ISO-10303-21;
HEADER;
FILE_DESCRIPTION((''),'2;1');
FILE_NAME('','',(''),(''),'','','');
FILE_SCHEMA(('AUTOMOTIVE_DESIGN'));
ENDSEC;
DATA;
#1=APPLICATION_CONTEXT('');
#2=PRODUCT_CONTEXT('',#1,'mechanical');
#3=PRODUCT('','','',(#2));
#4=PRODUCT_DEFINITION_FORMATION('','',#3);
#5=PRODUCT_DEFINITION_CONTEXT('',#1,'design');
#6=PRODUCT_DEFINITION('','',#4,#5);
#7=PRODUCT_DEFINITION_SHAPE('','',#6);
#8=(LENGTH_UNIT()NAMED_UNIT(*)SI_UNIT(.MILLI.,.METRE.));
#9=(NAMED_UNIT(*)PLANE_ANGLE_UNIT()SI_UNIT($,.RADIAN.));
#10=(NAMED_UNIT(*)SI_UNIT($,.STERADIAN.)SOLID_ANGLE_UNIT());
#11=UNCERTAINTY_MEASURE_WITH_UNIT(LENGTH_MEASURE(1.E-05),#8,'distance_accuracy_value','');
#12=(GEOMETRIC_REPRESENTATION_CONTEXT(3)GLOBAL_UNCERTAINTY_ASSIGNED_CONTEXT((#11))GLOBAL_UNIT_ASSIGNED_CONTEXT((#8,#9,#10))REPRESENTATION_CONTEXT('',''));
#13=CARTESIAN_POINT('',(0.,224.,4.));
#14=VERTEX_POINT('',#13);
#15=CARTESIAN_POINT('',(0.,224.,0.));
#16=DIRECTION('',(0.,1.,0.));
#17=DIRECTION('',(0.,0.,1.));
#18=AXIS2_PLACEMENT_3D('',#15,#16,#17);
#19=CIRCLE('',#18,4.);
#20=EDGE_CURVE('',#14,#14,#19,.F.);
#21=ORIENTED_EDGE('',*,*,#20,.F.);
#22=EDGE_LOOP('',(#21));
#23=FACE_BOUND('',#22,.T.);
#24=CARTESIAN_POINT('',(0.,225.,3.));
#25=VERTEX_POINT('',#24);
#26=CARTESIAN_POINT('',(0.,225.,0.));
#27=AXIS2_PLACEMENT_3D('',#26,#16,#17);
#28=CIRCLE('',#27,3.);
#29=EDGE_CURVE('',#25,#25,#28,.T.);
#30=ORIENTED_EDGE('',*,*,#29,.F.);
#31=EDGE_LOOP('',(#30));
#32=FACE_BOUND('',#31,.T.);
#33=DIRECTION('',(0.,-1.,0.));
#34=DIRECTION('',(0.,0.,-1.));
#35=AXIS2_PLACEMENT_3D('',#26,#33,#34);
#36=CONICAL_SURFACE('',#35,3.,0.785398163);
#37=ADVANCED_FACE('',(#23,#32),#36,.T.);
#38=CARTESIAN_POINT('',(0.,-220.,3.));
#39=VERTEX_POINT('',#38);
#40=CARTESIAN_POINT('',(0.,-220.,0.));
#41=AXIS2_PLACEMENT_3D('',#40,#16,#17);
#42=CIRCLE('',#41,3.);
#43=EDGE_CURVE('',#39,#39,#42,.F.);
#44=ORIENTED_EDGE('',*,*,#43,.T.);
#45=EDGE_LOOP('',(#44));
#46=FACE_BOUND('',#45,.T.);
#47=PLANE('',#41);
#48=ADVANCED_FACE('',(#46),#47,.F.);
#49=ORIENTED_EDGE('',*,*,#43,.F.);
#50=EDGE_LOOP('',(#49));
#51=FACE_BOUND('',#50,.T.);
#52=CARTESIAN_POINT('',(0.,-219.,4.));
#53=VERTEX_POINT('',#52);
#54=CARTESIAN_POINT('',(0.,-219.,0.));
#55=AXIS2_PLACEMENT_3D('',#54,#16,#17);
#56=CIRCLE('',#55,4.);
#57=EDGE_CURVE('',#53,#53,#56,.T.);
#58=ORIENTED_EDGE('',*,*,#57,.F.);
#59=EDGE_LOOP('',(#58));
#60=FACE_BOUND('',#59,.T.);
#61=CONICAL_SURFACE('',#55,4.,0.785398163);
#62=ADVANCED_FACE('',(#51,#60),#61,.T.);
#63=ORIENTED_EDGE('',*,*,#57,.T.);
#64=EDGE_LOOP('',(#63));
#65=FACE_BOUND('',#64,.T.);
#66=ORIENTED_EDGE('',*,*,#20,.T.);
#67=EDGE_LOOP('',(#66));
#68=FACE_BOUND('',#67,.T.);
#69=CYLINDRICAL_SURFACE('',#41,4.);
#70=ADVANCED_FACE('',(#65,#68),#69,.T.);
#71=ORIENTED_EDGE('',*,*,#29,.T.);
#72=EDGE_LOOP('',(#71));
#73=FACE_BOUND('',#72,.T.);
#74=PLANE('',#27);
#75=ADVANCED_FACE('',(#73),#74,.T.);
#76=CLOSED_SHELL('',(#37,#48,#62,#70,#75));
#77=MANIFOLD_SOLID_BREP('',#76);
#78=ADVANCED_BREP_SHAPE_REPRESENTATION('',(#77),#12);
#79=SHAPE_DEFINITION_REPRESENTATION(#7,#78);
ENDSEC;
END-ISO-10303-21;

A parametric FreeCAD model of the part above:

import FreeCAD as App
import Part
import Sketcher
from FreeCAD import Vector
Q = App.Units.Quantity


def edges_at(feature, points):
    """Names of the edges that pass closest to the given points."""
    edges = feature.Shape.Edges
    near = lambda p: min(range(len(edges)), key=lambda i: edges[i].distToShape(Part.Vertex(*p))[0])
    return sorted({f"Edge{near(p) + 1}" for p in points})

doc = App.newDocument("Part")
body = doc.addObject("PartDesign::Body", "Body")

# Sketch on XZ plane
sketch1 = body.newObject("Sketcher::SketchObject", "Sketch")
sketch1.AttachmentSupport = (doc.getObject("XZ_Plane"), [""])
sketch1.MapMode = "FlatFace"
sketch1.addGeometry(Part.Circle(Vector(0, 0, 0), Vector(0, 0, 1), 4), False)
sketch1.addConstraint(Sketcher.Constraint("Coincident", 0, 3, -1, 1))
sketch1.addConstraint(Sketcher.Constraint("Diameter", 0, Q("8 mm")))
pad1 = body.newObject("PartDesign::Pad", "Pad")
pad1.Profile = sketch1
pad1.Type = "TwoLengths"
pad1.Length = 225
pad1.Length2 = 220
pad1.Reversed = True
doc.recompute()

chamfer = body.newObject("PartDesign::Chamfer", "Chamfer")
chamfer.Base = (pad1, edges_at(pad1, [(0, -220, -4), (0, 225, -4)]))
chamfer.Size = 1

doc.recompute()
